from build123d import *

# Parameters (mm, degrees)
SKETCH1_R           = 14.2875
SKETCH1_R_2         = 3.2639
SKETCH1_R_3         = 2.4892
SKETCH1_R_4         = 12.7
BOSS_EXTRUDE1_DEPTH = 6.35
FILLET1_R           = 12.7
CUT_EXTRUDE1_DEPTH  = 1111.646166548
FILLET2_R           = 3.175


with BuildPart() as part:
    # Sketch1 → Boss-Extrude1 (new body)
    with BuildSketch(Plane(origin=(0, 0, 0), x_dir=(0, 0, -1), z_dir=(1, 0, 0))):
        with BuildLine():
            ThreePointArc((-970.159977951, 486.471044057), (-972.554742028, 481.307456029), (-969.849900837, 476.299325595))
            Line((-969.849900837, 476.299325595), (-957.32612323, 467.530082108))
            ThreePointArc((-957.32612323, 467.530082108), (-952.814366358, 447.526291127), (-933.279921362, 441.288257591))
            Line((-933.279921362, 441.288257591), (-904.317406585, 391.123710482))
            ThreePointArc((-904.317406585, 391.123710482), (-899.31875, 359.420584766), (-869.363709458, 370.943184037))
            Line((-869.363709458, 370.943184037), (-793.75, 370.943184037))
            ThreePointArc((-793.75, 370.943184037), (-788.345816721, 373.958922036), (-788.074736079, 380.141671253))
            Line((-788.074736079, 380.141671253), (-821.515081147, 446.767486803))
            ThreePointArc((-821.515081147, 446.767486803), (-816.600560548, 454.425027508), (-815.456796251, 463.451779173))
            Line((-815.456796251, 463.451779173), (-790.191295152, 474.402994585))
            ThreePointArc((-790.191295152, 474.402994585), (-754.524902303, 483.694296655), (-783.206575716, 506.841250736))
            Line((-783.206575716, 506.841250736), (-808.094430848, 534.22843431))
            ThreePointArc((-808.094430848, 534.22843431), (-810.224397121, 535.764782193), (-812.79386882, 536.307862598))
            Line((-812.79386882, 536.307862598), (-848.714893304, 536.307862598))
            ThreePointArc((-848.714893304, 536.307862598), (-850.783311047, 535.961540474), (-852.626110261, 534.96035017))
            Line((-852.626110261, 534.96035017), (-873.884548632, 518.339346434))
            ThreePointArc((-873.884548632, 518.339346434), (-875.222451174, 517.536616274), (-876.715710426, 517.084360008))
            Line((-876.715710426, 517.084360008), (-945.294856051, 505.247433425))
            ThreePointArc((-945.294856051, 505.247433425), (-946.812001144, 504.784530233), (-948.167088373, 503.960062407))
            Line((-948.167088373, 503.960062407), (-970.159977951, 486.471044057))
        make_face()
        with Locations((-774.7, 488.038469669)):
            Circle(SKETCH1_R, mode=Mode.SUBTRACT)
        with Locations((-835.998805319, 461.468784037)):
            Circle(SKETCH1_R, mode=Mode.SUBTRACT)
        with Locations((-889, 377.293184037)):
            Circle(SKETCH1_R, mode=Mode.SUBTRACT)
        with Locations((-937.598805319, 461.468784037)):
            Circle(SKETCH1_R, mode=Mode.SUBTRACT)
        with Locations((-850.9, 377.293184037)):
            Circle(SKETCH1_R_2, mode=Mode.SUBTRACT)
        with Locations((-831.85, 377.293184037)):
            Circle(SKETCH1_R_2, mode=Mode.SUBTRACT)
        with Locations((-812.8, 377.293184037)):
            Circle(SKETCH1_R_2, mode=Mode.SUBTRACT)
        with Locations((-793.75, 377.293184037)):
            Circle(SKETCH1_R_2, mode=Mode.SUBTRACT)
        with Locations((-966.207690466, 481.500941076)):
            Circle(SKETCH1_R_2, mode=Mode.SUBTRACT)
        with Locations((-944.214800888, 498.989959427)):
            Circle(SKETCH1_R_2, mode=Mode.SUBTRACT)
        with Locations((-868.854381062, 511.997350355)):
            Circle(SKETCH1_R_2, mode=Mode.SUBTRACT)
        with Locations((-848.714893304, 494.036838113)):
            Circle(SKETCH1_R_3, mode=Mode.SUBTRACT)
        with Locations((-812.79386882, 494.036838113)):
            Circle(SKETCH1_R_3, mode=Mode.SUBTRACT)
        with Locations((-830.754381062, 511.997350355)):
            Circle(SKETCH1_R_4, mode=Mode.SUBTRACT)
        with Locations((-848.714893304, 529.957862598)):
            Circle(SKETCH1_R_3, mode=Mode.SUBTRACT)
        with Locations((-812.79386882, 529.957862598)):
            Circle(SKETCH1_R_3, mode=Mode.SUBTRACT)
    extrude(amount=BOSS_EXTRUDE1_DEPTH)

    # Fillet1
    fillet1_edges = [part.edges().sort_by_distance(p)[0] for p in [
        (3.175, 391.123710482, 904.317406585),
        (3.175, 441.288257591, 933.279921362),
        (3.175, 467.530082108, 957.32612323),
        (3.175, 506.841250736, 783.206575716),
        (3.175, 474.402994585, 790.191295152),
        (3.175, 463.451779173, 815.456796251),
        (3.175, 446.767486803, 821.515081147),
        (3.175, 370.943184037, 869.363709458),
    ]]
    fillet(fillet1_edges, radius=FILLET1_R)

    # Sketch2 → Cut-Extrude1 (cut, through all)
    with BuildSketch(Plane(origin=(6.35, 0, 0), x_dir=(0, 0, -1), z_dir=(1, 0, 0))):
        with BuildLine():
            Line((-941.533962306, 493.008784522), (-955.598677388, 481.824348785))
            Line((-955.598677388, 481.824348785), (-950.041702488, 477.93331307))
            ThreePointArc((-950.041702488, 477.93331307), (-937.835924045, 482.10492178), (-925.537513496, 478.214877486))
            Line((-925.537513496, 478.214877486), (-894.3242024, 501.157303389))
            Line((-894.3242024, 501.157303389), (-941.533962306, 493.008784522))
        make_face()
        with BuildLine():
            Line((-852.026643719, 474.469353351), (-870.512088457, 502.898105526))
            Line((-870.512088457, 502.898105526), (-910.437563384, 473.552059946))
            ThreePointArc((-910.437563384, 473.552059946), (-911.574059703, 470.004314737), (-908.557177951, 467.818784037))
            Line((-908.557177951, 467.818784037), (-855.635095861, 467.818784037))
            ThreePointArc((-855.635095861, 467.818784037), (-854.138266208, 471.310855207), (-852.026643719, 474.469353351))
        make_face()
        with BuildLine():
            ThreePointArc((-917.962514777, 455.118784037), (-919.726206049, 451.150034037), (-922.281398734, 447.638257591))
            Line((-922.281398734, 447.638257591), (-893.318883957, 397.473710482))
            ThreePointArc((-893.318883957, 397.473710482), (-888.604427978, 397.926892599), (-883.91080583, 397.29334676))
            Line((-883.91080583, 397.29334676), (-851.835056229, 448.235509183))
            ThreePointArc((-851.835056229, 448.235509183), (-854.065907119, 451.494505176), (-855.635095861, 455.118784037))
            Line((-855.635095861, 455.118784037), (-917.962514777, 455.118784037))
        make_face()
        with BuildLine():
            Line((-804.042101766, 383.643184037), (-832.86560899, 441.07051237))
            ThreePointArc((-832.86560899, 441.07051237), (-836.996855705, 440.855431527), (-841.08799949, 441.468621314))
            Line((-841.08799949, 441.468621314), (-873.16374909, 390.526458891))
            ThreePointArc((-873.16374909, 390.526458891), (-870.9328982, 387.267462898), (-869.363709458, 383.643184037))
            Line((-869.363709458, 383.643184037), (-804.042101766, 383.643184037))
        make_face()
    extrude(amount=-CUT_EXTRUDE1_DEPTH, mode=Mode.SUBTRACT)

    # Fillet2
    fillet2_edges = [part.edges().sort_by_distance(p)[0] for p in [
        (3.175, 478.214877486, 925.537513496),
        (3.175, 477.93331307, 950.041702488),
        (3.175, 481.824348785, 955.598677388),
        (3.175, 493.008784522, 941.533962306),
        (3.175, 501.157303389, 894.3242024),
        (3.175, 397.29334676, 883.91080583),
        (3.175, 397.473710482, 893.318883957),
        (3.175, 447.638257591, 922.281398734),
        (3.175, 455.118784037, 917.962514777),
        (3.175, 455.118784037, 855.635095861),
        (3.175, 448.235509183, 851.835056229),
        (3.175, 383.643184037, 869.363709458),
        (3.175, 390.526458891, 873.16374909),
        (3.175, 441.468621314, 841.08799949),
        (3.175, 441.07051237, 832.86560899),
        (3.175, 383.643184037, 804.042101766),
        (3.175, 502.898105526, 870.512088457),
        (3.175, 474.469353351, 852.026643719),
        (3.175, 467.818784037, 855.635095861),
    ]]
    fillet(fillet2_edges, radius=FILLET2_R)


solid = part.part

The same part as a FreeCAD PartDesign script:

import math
import FreeCAD as App
import Part
import Sketcher
from FreeCAD import Vector
Q = App.Units.Quantity


def edges_at(feature, points):
    """Names of the edges that pass closest to the given points."""
    edges = feature.Shape.Edges
    near = lambda p: min(range(len(edges)), key=lambda i: edges[i].distToShape(Part.Vertex(*p))[0])
    return sorted({f"Edge{near(p) + 1}" for p in points})

doc = App.newDocument("Part")
body = doc.addObject("PartDesign::Body", "Body")

sketch1 = body.newObject("Sketcher::SketchObject", "Sketch")
sketch1.AttachmentSupport = (doc.getObject("YZ_Plane"), [""])
sketch1.MapMode = "FlatFace"
sketch1.addGeometry(Part.ArcOfCircle(Part.Circle(Vector(481.5, 966.2, 0), Vector(0, 0, 1), 6.4), math.radians(38), math.radians(145)), False)
sketch1.addGeometry(Part.LineSegment(Vector(476.3, 969.8, 0), Vector(467.5, 957.3, 0)), False)
sketch1.addGeometry(Part.ArcOfCircle(Part.Circle(Vector(461.5, 937.6, 0), Vector(0, 0, 1), 20.6), math.radians(73), math.radians(192)), False)
sketch1.addGeometry(Part.LineSegment(Vector(441.3, 933.3, 0), Vector(391.1, 904.3, 0)), False)
sketch1.addGeometry(Part.ArcOfCircle(Part.Circle(Vector(377.3, 889, 0), Vector(0, 0, 1), 20.6), math.radians(48), math.radians(252)), False)
sketch1.addGeometry(Part.LineSegment(Vector(370.9, 869.4, 0), Vector(370.9, 793.8, 0)), False)
sketch1.addGeometry(Part.ArcOfCircle(Part.Circle(Vector(377.3, 793.7, 0), Vector(0, 0, 1), 6.3), math.radians(180), math.radians(297)), False)
sketch1.addGeometry(Part.LineSegment(Vector(380.1, 788.1, 0), Vector(446.8, 821.5, 0)), False)
sketch1.addGeometry(Part.ArcOfCircle(Part.Circle(Vector(461.5, 836, 0), Vector(0, 0, 1), 20.6), math.radians(-135), math.radians(-84)), False)
sketch1.addGeometry(Part.LineSegment(Vector(463.5, 815.5, 0), Vector(474.4, 790.2, 0)), False)
sketch1.addGeometry(Part.ArcOfCircle(Part.Circle(Vector(488, 774.7, 0), Vector(0, 0, 1), 20.6), math.radians(131), math.radians(384)), False)
sketch1.addGeometry(Part.LineSegment(Vector(506.8, 783.2, 0), Vector(534.2, 808.1, 0)), False)
sketch1.addGeometry(Part.ArcOfCircle(Part.Circle(Vector(530, 812.8, 0), Vector(0, 0, 1), 6.4), math.radians(-48), math.radians(0)), False)
sketch1.addGeometry(Part.LineSegment(Vector(536.3, 812.8, 0), Vector(536.3, 848.7, 0)), False)
sketch1.addGeometry(Part.ArcOfCircle(Part.Circle(Vector(530, 848.7, 0), Vector(0, 0, 1), 6.3), math.radians(0), math.radians(38)), False)
sketch1.addGeometry(Part.LineSegment(Vector(535, 852.6, 0), Vector(518.3, 873.9, 0)), False)
sketch1.addGeometry(Part.ArcOfCircle(Part.Circle(Vector(523.3, 877.8, 0), Vector(0, 0, 1), 6.3), math.radians(-170), math.radians(-142)), False)
sketch1.addGeometry(Part.LineSegment(Vector(517.1, 876.7, 0), Vector(505.2, 945.3, 0)), False)
sketch1.addGeometry(Part.ArcOfCircle(Part.Circle(Vector(499, 944.2, 0), Vector(0, 0, 1), 6.3), math.radians(10), math.radians(38)), False)
sketch1.addGeometry(Part.LineSegment(Vector(504, 948.2, 0), Vector(486.5, 970.2, 0)), False)
sketch1.addGeometry(Part.Circle(Vector(377.3, 889, 0), Vector(0, 0, 1), 14.3), False)
sketch1.addGeometry(Part.Circle(Vector(377.3, 850.9, 0), Vector(0, 0, 1), 3.3), False)
sketch1.addGeometry(Part.Circle(Vector(377.3, 831.9, 0), Vector(0, 0, 1), 3.3), False)
sketch1.addGeometry(Part.Circle(Vector(377.3, 812.8, 0), Vector(0, 0, 1), 3.3), False)
sketch1.addGeometry(Part.Circle(Vector(377.3, 793.8, 0), Vector(0, 0, 1), 3.3), False)
sketch1.addGeometry(Part.Circle(Vector(461.5, 937.6, 0), Vector(0, 0, 1), 14.3), False)
sketch1.addGeometry(Part.Circle(Vector(481.5, 966.2, 0), Vector(0, 0, 1), 3.3), False)
sketch1.addGeometry(Part.Circle(Vector(499, 944.2, 0), Vector(0, 0, 1), 3.3), False)
sketch1.addGeometry(Part.Circle(Vector(512, 868.9, 0), Vector(0, 0, 1), 3.3), False)
sketch1.addGeometry(Part.Circle(Vector(461.5, 836, 0), Vector(0, 0, 1), 14.3), False)
sketch1.addGeometry(Part.Circle(Vector(488, 774.7, 0), Vector(0, 0, 1), 14.3), False)
sketch1.addGeometry(Part.Circle(Vector(494, 848.7, 0), Vector(0, 0, 1), 2.5), False)
sketch1.addGeometry(Part.Circle(Vector(494, 812.8, 0), Vector(0, 0, 1), 2.5), False)
sketch1.addGeometry(Part.Circle(Vector(530, 848.7, 0), Vector(0, 0, 1), 2.5), False)
sketch1.addGeometry(Part.Circle(Vector(512, 830.8, 0), Vector(0, 0, 1), 12.7), False)
sketch1.addGeometry(Part.Circle(Vector(530, 812.8, 0), Vector(0, 0, 1), 2.5), False)
sketch1.addConstraint(Sketcher.Constraint("Tangent", 0, 2, 1, 1))
sketch1.addConstraint(Sketcher.Constraint("Coincident", 1, 2, 2, 1))
sketch1.addConstraint(Sketcher.Constraint("Coincident", 2, 2, 3, 1))
sketch1.addConstraint(Sketcher.Constraint("Coincident", 3, 2, 4, 1))
sketch1.addConstraint(Sketcher.Constraint("Coincident", 4, 2, 5, 1))
sketch1.addConstraint(Sketcher.Constraint("Tangent", 5, 2, 6, 1))
sketch1.addConstraint(Sketcher.Constraint("Tangent", 6, 2, 7, 1))
sketch1.addConstraint(Sketcher.Constraint("Coincident", 7, 2, 8, 1))
sketch1.addConstraint(Sketcher.Constraint("Coincident", 8, 2, 9, 1))
sketch1.addConstraint(Sketcher.Constraint("Coincident", 9, 2, 10, 1))
sketch1.addConstraint(Sketcher.Constraint("Coincident", 10, 2, 11, 1))
sketch1.addConstraint(Sketcher.Constraint("Tangent", 11, 2, 12, 1))
sketch1.addConstraint(Sketcher.Constraint("Tangent", 12, 2, 13, 1))
sketch1.addConstraint(Sketcher.Constraint("Tangent", 13, 2, 14, 1))
sketch1.addConstraint(Sketcher.Constraint("Tangent", 14, 2, 15, 1))
sketch1.addConstraint(Sketcher.Constraint("Tangent", 15, 2, 16, 2))
sketch1.addConstraint(Sketcher.Constraint("Tangent", 16, 1, 17, 1))
sketch1.addConstraint(Sketcher.Constraint("Tangent", 17, 2, 18, 1))
sketch1.addConstraint(Sketcher.Constraint("Tangent", 18, 2, 19, 1))
sketch1.addConstraint(Sketcher.Constraint("Tangent", 19, 2, 0, 1))
sketch1.addConstraint(Sketcher.Constraint("Vertical", 5))
sketch1.addConstraint(Sketcher.Constraint("Vertical", 13))
sketch1.addConstraint(Sketcher.Constraint("Coincident", 20, 3, 4, 3))
sketch1.addConstraint(Sketcher.Constraint("Coincident", 24, 3, 6, 3))
sketch1.addConstraint(Sketcher.Constraint("Coincident", 25, 3, 2, 3))
sketch1.addConstraint(Sketcher.Constraint("Coincident", 26, 3, 0, 3))
sketch1.addConstraint(Sketcher.Constraint("Coincident", 27, 3, 18, 3))
sketch1.addConstraint(Sketcher.Constraint("Coincident", 29, 3, 8, 3))
sketch1.addConstraint(Sketcher.Constraint("Coincident", 30, 3, 10, 3))
sketch1.addConstraint(Sketcher.Constraint("Coincident", 33, 3, 14, 3))
sketch1.addConstraint(Sketcher.Constraint("Coincident", 35, 3, 12, 3))
sketch1.addConstraint(Sketcher.Constraint("Equal", 2, 4))
sketch1.addConstraint(Sketcher.Constraint("Equal", 0, 6))
sketch1.addConstraint(Sketcher.Constraint("Equal", 4, 8))
sketch1.addConstraint(Sketcher.Constraint("Equal", 8, 10))
sketch1.addConstraint(Sketcher.Constraint("Equal", 6, 12))
sketch1.addConstraint(Sketcher.Constraint("Equal", 12, 14))
sketch1.addConstraint(Sketcher.Constraint("Equal", 14, 16))
sketch1.addConstraint(Sketcher.Constraint("Equal", 16, 18))
sketch1.addConstraint(Sketcher.Constraint("Equal", 21, 22))
sketch1.addConstraint(Sketcher.Constraint("Equal", 22, 23))
sketch1.addConstraint(Sketcher.Constraint("Equal", 23, 24))
sketch1.addConstraint(Sketcher.Constraint("Equal", 20, 25))
sketch1.addConstraint(Sketcher.Constraint("Equal", 24, 26))
sketch1.addConstraint(Sketcher.Constraint("Equal", 26, 27))
sketch1.addConstraint(Sketcher.Constraint("Equal", 27, 28))
sketch1.addConstraint(Sketcher.Constraint("Equal", 25, 29))
sketch1.addConstraint(Sketcher.Constraint("Equal", 29, 30))
sketch1.addConstraint(Sketcher.Constraint("Equal", 31, 32))
sketch1.addConstraint(Sketcher.Constraint("Equal", 32, 33))
sketch1.addConstraint(Sketcher.Constraint("Equal", 33, 35))
sketch1.addConstraint(Sketcher.Constraint("Horizontal", 14, 3, 31, 3))
sketch1.addConstraint(Sketcher.Constraint("Horizontal", 12, 3, 32, 3))
sketch1.addConstraint(Sketcher.Constraint("Vertical", 4, 3, 6, 3))
sketch1.addConstraint(Sketcher.Constraint("Vertical", 2, 3, 8, 3))
sketch1.addConstraint(Sketcher.Constraint("Vertical", 20, 3, 21, 3))
sketch1.addConstraint(Sketcher.Constraint("Vertical", 21, 3, 22, 3))
sketch1.addConstraint(Sketcher.Constraint("Vertical", 22, 3, 23, 3))
sketch1.addConstraint(Sketcher.Constraint("Vertical", 31, 3, 32, 3))
sketch1.addConstraint(Sketcher.Constraint("Vertical", 28, 3, 34, 3))
sketch1.addConstraint(Sketcher.Constraint("Diameter", 34, Q("1 in")))
sketch1.addConstraint(Sketcher.Constraint("Radius", 0, Q("0.25 in")))
sketch1.addConstraint(Sketcher.Constraint("Diameter", 20, Q("1.125 in")))
sketch1.addConstraint(Sketcher.Constraint("Diameter", 21, Q("0.257 in")))
sketch1.addConstraint(Sketcher.Constraint("Diameter", 31, Q("0.196 in")))
sketch1.addConstraint(Sketcher.Constraint("DistanceY", -1, 1, 4, 3, Q("35 in")))
sketch1.addConstraint(Sketcher.Constraint("DistanceY", -1, 1, 23, 3, Q("32 in")))
sketch1.addConstraint(Sketcher.Constraint("Angle", 1, Q("-125 deg")))
sketch1.addConstraint(Sketcher.Constraint("Angle", 3, Q("-150 deg")))
sketch1.addConstraint(Sketcher.Constraint("Radius", 2, Q("0.8125 in")))
sketch1.addConstraint(Sketcher.Constraint("DistanceY", 8, 3, 2, 3, Q("4 in")))
sketch1.addConstraint(Sketcher.Constraint("DistanceY", -1, 1, 10, 3, Q("30.5 in")))
sketch1.addConstraint(Sketcher.Constraint("DistanceY", -1, 1, 21, 3, Q("33.5 in")))
sketch1.addConstraint(Sketcher.Constraint("DistanceY", 6, 3, 22, 3, Q("1.5 in")))
sketch1.addConstraint(Sketcher.Constraint("DistanceY", -1, 1, 6, 3, Q("31.25 in")))
sketch1.addConstraint(Sketcher.Constraint("DistanceX", 4, 3, 2, 3, Q("3.314 in")))
sketch1.addConstraint(Sketcher.Constraint("DistanceY", -1, 1, 18, 3, 944.214801))
sketch1.addConstraint(Sketcher.Constraint("DistanceY", -1, 1, 0, 2, 969.849901))
sketch1.addConstraint(Sketcher.Constraint("DistanceX", 2, 3, 1, 2, 6.061298))
sketch1.addConstraint(Sketcher.Constraint("DistanceY", 2, 2, 1, 2, 24.046202))
sketch1.addConstraint(Sketcher.Constraint("DistanceY", 9, 2, 8, 2, 25.265501))
sketch1.addConstraint(Sketcher.Constraint("DistanceX", 28, 3, 14, 2, 22.963))
sketch1.addConstraint(Sketcher.Constraint("DistanceY", 14, 2, 16, 1, 24.0896))
sketch1.addConstraint(Sketcher.Constraint("Distance", 1, 15.288709))
sketch1.addConstraint(Sketcher.Constraint("Distance", 11, 37.006258))
sketch1.addConstraint(Sketcher.Constraint("Distance", 15, 26.984791))
sketch1.addConstraint(Sketcher.Constraint("Distance", 17, 69.59319))
sketch1.addConstraint(Sketcher.Constraint("DistanceY", 13, 1, 13, 2, 35.921024))
sketch1.addConstraint(Sketcher.Constraint("DistanceX", -1, 1, 0, 3, 481.500941))
sketch1.addConstraint(Sketcher.Constraint("DistanceX", -1, 1, 10, 3, 488.03847))
sketch1.addConstraint(Sketcher.Constraint("DistanceY", -1, 1, 12, 3, 812.793869))
sketch1.addConstraint(Sketcher.Constraint("DistanceX", -1, 1, 18, 3, 498.989959))
sketch1.addConstraint(Sketcher.Constraint("DistanceY", -1, 1, 28, 3, 868.854381))
sketch1.addConstraint(Sketcher.Constraint("DistanceX", -1, 1, 31, 3, 494.036838))
sketch1.addConstraint(Sketcher.Constraint("DistanceY", -1, 1, 34, 3, 830.754381))
sketch1.addConstraint(Sketcher.Constraint("DistanceX", -1, 1, 6, 2, 380.141671))
sketch1.addConstraint(Sketcher.Constraint("DistanceX", -1, 1, 8, 2, 463.451779))
pad1 = body.newObject("PartDesign::Pad", "Pad")
pad1.Profile = sketch1
pad1.Length = Q("0.25 in")
doc.recompute()

fillet = body.newObject("PartDesign::Fillet", "Fillet")
fillet.Base = (pad1, edges_at(pad1, [
    (3.175, 391.124, 904.317),
    (3.175, 441.288, 933.28),
    (3.175, 467.53, 957.326),
    (3.175, 506.841, 783.207),
    (3.175, 474.403, 790.191),
    (3.175, 463.452, 815.457),
    (3.175, 446.767, 821.515),
    (3.175, 370.943, 869.364),
]))
fillet.Radius = Q("0.5 in")

sketch2 = body.newObject("Sketcher::SketchObject", "Sketch001")
sketch2.AttachmentSupport = (doc.getObject("YZ_Plane"), [""])
sketch2.MapMode = "FlatFace"
sketch2.AttachmentOffset = App.Placement(Vector(0, 0, 0.25 * 25.4), App.Rotation())
sketch2.addGeometry(Part.LineSegment(Vector(493, 941.5, 0), Vector(481.8, 955.6, 0)), False)
sketch2.addGeometry(Part.LineSegment(Vector(481.8, 955.6, 0), Vector(477.9, 950, 0)), False)
sketch2.addGeometry(Part.ArcOfCircle(Part.Circle(Vector(461.5, 937.6, 0), Vector(0, 0, 1), 20.6), math.radians(-36), math.radians(37)), False)
sketch2.addGeometry(Part.LineSegment(Vector(478.2, 925.5, 0), Vector(501.2, 894.3, 0)), False)
sketch2.addGeometry(Part.LineSegment(Vector(501.2, 894.3, 0), Vector(493, 941.5, 0)), False)
sketch2.addGeometry(Part.LineSegment(Vector(474.5, 852, 0), Vector(502.9, 870.5, 0)), False)
sketch2.addGeometry(Part.LineSegment(Vector(502.9, 870.5, 0), Vector(473.6, 910.4, 0)), False)
sketch2.addGeometry(Part.ArcOfCircle(Part.Circle(Vector(471, 908.6, 0), Vector(0, 0, 1), 3.2), math.radians(36), math.radians(180)), False)
sketch2.addGeometry(Part.LineSegment(Vector(467.8, 908.6, 0), Vector(467.8, 855.6, 0)), False)
sketch2.addGeometry(Part.ArcOfCircle(Part.Circle(Vector(461.5, 836, 0), Vector(0, 0, 1), 20.6), math.radians(51), math.radians(72)), False)
sketch2.addGeometry(Part.ArcOfCircle(Part.Circle(Vector(461.5, 937.6, 0), Vector(0, 0, 1), 20.6), math.radians(-132), math.radians(-108)), False)
sketch2.addGeometry(Part.LineSegment(Vector(447.6, 922.3, 0), Vector(397.5, 893.3, 0)), False)
sketch2.addGeometry(Part.ArcOfCircle(Part.Circle(Vector(377.3, 889, 0), Vector(0, 0, 1), 20.6), math.radians(-14), math.radians(12)), False)
sketch2.addGeometry(Part.LineSegment(Vector(397.3, 883.9, 0), Vector(448.2, 851.8, 0)), False)
sketch2.addGeometry(Part.ArcOfCircle(Part.Circle(Vector(461.5, 836, 0), Vector(0, 0, 1), 20.6), math.radians(108), math.radians(130)), False)
sketch2.addGeometry(Part.LineSegment(Vector(455.1, 855.6, 0), Vector(455.1, 918, 0)), False)
sketch2.addGeometry(Part.LineSegment(Vector(383.6, 804, 0), Vector(441.1, 832.9, 0)), False)
sketch2.addGeometry(Part.ArcOfCircle(Part.Circle(Vector(461.5, 836, 0), Vector(0, 0, 1), 20.6), math.radians(166), math.radians(189)), False)
sketch2.addGeometry(Part.LineSegment(Vector(441.5, 841.1, 0), Vector(390.5, 873.2, 0)), False)
sketch2.addGeometry(Part.ArcOfCircle(Part.Circle(Vector(377.3, 889, 0), Vector(0, 0, 1), 20.6), math.radians(-72), math.radians(-50)), False)
sketch2.addGeometry(Part.LineSegment(Vector(383.6, 869.4, 0), Vector(383.6, 804, 0)), False)
sketch2.addConstraint(Sketcher.Constraint("Coincident", 0, 2, 1, 1))
sketch2.addConstraint(Sketcher.Constraint("Coincident", 1, 2, 2, 2))
sketch2.addConstraint(Sketcher.Constraint("Coincident", 2, 1, 3, 1))
sketch2.addConstraint(Sketcher.Constraint("Coincident", 3, 2, 4, 1))
sketch2.addConstraint(Sketcher.Constraint("Coincident", 4, 2, 0, 1))
sketch2.addConstraint(Sketcher.Constraint("Coincident", 5, 2, 6, 1))
sketch2.addConstraint(Sketcher.Constraint("Tangent", 6, 2, 7, 1))
sketch2.addConstraint(Sketcher.Constraint("Tangent", 7, 2, 8, 1))
sketch2.addConstraint(Sketcher.Constraint("Coincident", 8, 2, 9, 2))
sketch2.addConstraint(Sketcher.Constraint("Coincident", 9, 1, 5, 1))
sketch2.addConstraint(Sketcher.Constraint("Coincident", 10, 1, 11, 1))
sketch2.addConstraint(Sketcher.Constraint("Coincident", 11, 2, 12, 2))
sketch2.addConstraint(Sketcher.Constraint("Coincident", 12, 1, 13, 1))
sketch2.addConstraint(Sketcher.Constraint("Coincident", 13, 2, 14, 2))
sketch2.addConstraint(Sketcher.Constraint("Coincident", 14, 1, 15, 1))
sketch2.addConstraint(Sketcher.Constraint("Coincident", 15, 2, 10, 2))
sketch2.addConstraint(Sketcher.Constraint("Coincident", 16, 2, 17, 2))
sketch2.addConstraint(Sketcher.Constraint("Coincident", 17, 1, 18, 1))
sketch2.addConstraint(Sketcher.Constraint("Coincident", 18, 2, 19, 2))
sketch2.addConstraint(Sketcher.Constraint("Coincident", 19, 1, 20, 1))
sketch2.addConstraint(Sketcher.Constraint("Coincident", 20, 2, 16, 1))
sketch2.addConstraint(Sketcher.Constraint("Vertical", 8))
sketch2.addConstraint(Sketcher.Constraint("Vertical", 15))
sketch2.addConstraint(Sketcher.Constraint("Vertical", 20))
sketch2.addConstraint(Sketcher.Constraint("Coincident", 10, 3, 2, 3))
sketch2.addConstraint(Sketcher.Constraint("Coincident", 14, 3, 9, 3))
sketch2.addConstraint(Sketcher.Constraint("Coincident", 17, 3, 9, 3))
sketch2.addConstraint(Sketcher.Constraint("Coincident", 19, 3, 12, 3))
sketch2.addConstraint(Sketcher.Constraint("Equal", 2, 9))
sketch2.addConstraint(Sketcher.Constraint("Equal", 9, 10))
sketch2.addConstraint(Sketcher.Constraint("Equal", 10, 12))
sketch2.addConstraint(Sketcher.Constraint("Equal", 12, 14))
sketch2.addConstraint(Sketcher.Constraint("Equal", 14, 17))
sketch2.addConstraint(Sketcher.Constraint("Equal", 17, 19))
sketch2.addConstraint(Sketcher.Constraint("Parallel", 3, 6))
sketch2.addConstraint(Sketcher.Constraint("Parallel", 13, 18))
sketch2.addConstraint(Sketcher.Constraint("Horizontal", 8, 2, 14, 1))
sketch2.addConstraint(Sketcher.Constraint("Vertical", 2, 3, 9, 3))
sketch2.addConstraint(Sketcher.Constraint("Equal", 13, 18))
sketch2.addConstraint(Sketcher.Constraint("DistanceY", -1, 1, 12, 3, Q("35 in")))
sketch2.addConstraint(Sketcher.Constraint("Angle", 1, Q("-125 deg")))
sketch2.addConstraint(Sketcher.Constraint("Angle", 11, Q("-150 deg")))
sketch2.addConstraint(Sketcher.Constraint("Radius", 2, Q("0.8125 in")))
sketch2.addConstraint(Sketcher.Constraint("Radius", 7, Q("0.125 in")))
sketch2.addConstraint(Sketcher.Constraint("DistanceY", 9, 3, 2, 3, Q("4 in")))
sketch2.addConstraint(Sketcher.Constraint("DistanceX", 14, 1, 8, 2, Q("0.5 in")))
sketch2.addConstraint(Sketcher.Constraint("DistanceX", 12, 3, 19, 1, Q("0.25 in")))
sketch2.addConstraint(Sketcher.Constraint("DistanceX", 12, 3, 7, 3, Q("3.689 in")))
sketch2.addConstraint(Sketcher.Constraint("Distance", 6, Q("1.9507999 in")))
sketch2.addConstraint(Sketcher.Constraint("DistanceX", 10, 3, 0, 2, Q("0.8014002 in")))
sketch2.addConstraint(Sketcher.Constraint("DistanceY", 20, 2, 17, 1, Q("1.4584999 in")))
sketch2.addConstraint(Sketcher.Constraint("DistanceY", -1, 1, 10, 1, 922.281399))
sketch2.addConstraint(Sketcher.Constraint("DistanceY", -1, 1, 17, 1, 841.087999))
sketch2.addConstraint(Sketcher.Constraint("DistanceY", 7, 3, 0, 2, 47.041499))
sketch2.addConstraint(Sketcher.Constraint("DistanceY", 3, 2, 1, 2, 55.7175))
sketch2.addConstraint(Sketcher.Constraint("DistanceX", 10, 3, 4, 2, 31.54))
sketch2.addConstraint(Sketcher.Constraint("Distance", 3, 38.73791))
sketch2.addConstraint(Sketcher.Constraint("Distance", 5, 33.910258))
sketch2.addConstraint(Sketcher.Constraint("Distance", 11, 57.92503))
sketch2.addConstraint(Sketcher.Constraint("DistanceY", 8, 2, 8, 1, 52.922082))
sketch2.addConstraint(Sketcher.Constraint("DistanceX", -1, 1, 0, 2, 481.824349))
sketch2.addConstraint(Sketcher.Constraint("DistanceY", -1, 1, 5, 2, 870.512088))
sketch2.addConstraint(Sketcher.Constraint("DistanceX", -1, 1, 13, 2, 448.235509))
sketch2.addConstraint(Sketcher.Constraint("DistanceY", -1, 1, 16, 2, 832.865609))
sketch2.addConstraint(Sketcher.Constraint("DistanceY", 4, 2, 1, 2, 8.50774))
pocket1 = body.newObject("PartDesign::Pocket", "Pocket")
pocket1.Profile = sketch2
pocket1.Type = "ThroughAll"
doc.recompute()

fillet2 = body.newObject("PartDesign::Fillet", "Fillet001")
fillet2.Base = (pocket1, edges_at(pocket1, [
    (3.175, 478.215, 925.538),
    (3.175, 477.933, 950.042),
    (3.175, 481.824, 955.599),
    (3.175, 493.009, 941.534),
    (3.175, 501.157, 894.324),
    (3.175, 397.293, 883.911),
    (3.175, 397.474, 893.319),
    (3.175, 447.638, 922.281),
    (3.175, 455.119, 917.963),
    (3.175, 455.119, 855.635),
    (3.175, 448.236, 851.835),
    (3.175, 383.643, 869.364),
    (3.175, 390.526, 873.164),
    (3.175, 441.469, 841.088),
    (3.175, 441.071, 832.866),
    (3.175, 383.643, 804.042),
    (3.175, 502.898, 870.512),
    (3.175, 474.469, 852.027),
    (3.175, 467.819, 855.635),
]))
fillet2.Radius = Q("0.125 in")

doc.recompute()
